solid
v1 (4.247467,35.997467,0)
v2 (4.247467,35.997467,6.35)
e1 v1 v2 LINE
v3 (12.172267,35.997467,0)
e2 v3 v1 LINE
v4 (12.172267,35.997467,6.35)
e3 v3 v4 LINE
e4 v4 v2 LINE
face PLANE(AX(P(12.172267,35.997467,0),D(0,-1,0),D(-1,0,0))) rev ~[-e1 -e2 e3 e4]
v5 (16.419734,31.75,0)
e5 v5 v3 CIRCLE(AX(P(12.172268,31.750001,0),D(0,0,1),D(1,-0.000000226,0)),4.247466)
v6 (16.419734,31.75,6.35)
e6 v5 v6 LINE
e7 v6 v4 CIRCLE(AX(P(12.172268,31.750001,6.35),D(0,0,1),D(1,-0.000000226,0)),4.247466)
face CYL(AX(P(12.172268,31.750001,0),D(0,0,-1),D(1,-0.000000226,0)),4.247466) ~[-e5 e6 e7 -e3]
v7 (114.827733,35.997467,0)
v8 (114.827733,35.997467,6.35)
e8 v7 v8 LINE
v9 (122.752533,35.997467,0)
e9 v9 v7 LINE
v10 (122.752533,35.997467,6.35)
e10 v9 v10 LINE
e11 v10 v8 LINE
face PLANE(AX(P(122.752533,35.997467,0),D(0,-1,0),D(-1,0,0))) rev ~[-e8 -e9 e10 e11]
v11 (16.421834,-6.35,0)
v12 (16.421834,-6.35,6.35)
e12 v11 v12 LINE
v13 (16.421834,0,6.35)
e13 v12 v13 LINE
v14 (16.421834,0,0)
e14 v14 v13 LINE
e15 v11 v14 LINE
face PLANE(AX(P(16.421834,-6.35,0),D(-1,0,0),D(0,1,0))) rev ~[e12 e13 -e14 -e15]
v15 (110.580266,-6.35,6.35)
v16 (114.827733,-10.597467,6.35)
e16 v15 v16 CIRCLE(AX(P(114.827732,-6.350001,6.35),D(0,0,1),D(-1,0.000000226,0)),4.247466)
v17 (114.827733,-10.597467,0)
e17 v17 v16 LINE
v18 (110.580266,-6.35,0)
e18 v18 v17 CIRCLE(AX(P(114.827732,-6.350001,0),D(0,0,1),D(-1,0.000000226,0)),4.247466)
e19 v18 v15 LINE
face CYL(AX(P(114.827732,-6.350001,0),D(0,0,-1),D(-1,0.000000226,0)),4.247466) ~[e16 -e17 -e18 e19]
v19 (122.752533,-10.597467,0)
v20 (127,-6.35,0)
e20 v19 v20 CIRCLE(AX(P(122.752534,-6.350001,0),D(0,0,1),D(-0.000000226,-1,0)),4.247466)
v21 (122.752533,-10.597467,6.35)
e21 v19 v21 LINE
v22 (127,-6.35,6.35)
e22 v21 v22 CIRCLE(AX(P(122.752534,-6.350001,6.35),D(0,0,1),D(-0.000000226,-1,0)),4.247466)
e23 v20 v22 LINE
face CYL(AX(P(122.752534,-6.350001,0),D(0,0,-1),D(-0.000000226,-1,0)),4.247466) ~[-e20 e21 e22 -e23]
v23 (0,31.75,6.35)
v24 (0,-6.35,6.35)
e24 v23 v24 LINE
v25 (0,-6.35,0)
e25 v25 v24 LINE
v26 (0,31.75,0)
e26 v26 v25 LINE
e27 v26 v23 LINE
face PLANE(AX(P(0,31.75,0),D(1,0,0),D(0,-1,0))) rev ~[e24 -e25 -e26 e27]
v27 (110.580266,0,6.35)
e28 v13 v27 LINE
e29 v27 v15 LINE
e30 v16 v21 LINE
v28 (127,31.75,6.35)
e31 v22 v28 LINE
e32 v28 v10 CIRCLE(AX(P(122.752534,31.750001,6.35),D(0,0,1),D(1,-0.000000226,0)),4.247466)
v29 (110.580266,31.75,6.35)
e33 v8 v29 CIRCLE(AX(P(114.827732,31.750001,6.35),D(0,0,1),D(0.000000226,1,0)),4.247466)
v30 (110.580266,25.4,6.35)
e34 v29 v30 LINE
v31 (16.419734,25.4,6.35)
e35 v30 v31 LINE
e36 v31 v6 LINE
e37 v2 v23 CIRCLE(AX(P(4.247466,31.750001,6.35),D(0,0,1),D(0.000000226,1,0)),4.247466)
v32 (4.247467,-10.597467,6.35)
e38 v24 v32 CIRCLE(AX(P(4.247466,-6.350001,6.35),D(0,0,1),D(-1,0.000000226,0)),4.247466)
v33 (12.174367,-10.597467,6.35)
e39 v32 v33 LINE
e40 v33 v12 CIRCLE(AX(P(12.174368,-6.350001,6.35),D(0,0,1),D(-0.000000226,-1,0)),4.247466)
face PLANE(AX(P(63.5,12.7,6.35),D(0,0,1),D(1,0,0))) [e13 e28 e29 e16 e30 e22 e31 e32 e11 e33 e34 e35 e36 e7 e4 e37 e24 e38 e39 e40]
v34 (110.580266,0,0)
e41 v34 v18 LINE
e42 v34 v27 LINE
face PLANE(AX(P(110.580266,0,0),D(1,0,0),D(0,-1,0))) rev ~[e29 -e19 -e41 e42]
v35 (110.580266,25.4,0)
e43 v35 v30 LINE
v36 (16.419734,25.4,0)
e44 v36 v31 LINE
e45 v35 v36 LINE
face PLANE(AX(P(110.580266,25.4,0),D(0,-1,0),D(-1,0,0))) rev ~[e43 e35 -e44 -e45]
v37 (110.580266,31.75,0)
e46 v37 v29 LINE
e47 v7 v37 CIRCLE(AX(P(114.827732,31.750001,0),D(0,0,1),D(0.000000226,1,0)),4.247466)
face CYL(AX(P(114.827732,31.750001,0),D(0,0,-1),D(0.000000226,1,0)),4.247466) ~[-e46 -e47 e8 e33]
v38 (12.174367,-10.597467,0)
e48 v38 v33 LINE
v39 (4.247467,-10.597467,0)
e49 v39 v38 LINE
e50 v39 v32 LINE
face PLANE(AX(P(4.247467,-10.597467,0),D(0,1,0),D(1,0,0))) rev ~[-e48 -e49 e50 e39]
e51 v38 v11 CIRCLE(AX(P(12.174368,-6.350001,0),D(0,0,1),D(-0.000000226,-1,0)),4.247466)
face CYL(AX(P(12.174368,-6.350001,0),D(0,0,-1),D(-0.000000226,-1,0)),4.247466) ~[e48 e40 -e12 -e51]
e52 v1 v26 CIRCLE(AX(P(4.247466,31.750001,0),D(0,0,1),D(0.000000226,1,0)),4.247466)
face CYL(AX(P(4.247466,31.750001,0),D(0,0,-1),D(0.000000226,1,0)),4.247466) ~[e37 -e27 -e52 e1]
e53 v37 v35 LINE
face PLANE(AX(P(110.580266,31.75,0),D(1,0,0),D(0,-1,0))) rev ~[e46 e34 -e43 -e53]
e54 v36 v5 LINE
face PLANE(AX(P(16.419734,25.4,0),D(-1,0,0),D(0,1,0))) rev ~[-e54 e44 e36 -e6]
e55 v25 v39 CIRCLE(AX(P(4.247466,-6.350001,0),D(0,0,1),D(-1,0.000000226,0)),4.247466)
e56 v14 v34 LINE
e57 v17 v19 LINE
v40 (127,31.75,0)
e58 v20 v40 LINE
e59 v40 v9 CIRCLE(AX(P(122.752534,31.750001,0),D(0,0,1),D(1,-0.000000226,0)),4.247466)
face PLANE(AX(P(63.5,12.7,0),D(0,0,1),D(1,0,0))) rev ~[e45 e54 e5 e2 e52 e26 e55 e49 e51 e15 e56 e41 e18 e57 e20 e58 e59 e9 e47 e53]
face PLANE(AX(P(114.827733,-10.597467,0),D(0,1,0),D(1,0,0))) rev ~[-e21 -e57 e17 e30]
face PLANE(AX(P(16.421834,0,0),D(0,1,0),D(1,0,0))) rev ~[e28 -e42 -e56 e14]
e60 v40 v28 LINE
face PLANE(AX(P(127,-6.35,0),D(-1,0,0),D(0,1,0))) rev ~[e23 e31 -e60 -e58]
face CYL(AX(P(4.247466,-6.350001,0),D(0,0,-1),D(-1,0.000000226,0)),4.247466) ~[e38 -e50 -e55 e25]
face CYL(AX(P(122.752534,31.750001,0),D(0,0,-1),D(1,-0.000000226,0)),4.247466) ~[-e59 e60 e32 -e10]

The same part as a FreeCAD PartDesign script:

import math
import FreeCAD as App
import Part
import Sketcher

V = App.Vector
Q = App.Units.Quantity

doc = App.newDocument("Part")
params = doc.addObject("Spreadsheet::Sheet", "Params")
for row, (alias, value) in enumerate([
    ("sketch1_height", "1.5 in"),
    ("sketch1_width", "0.312 in"),
    ("pad1_length", "0.25 in"),
], start=1):
    params.set(f"A{row}", alias)
    params.set(f"B{row}", "=" + value)
    params.setAlias(f"B{row}", alias)

body = doc.addObject("PartDesign::Body", "Body")

# Sketch on XY plane
sketch1 = body.newObject("Sketcher::SketchObject", "Sketch")
sketch1.AttachmentSupport = (doc.getObject("XY_Plane"), [""])
sketch1.MapMode = "FlatFace"
sketch1.addGeometry([
    Part.ArcOfCircle(Part.Circle(V(4.247466, -6.350001, 0), V(0, 0, 1), 4.247466), math.radians(179.999987), math.radians(270.000013)),  # 0
    Part.LineSegment(V(4.247467, -10.597467, 0), V(12.174367, -10.597467, 0)),  # 1
    Part.ArcOfCircle(Part.Circle(V(12.174368, -6.350001, 0), V(0, 0, 1), 4.247466), math.radians(-90.000013), math.radians(0.000013)),  # 2
    Part.LineSegment(V(16.421834, -6.35, 0), V(16.421834, 0, 0)),  # 3
    Part.LineSegment(V(16.421834, 0, 0), V(110.580266, 0, 0)),  # 4
    Part.LineSegment(V(110.580266, 0, 0), V(110.580266, -6.35, 0)),  # 5
    Part.ArcOfCircle(Part.Circle(V(114.827732, -6.350001, 0), V(0, 0, 1), 4.247466), math.radians(179.999987), math.radians(270.000013)),  # 6
    Part.LineSegment(V(114.827733, -10.597467, 0), V(122.752533, -10.597467, 0)),  # 7
    Part.ArcOfCircle(Part.Circle(V(122.752534, -6.350001, 0), V(0, 0, 1), 4.247466), math.radians(-90.000013), math.radians(0.000013)),  # 8
    Part.LineSegment(V(127, -6.35, 0), V(127, 31.75, 0)),  # 9
    Part.ArcOfCircle(Part.Circle(V(122.752534, 31.750001, 0), V(0, 0, 1), 4.247466), math.radians(-0.000013), math.radians(90.000013)),  # 10
    Part.LineSegment(V(122.752533, 35.997467, 0), V(114.827733, 35.997467, 0)),  # 11
    Part.ArcOfCircle(Part.Circle(V(114.827732, 31.750001, 0), V(0, 0, 1), 4.247466), math.radians(89.999987), math.radians(180.000013)),  # 12
    Part.LineSegment(V(110.580266, 31.75, 0), V(110.580266, 25.4, 0)),  # 13
    Part.LineSegment(V(110.580266, 25.4, 0), V(16.419734, 25.4, 0)),  # 14
    Part.LineSegment(V(16.419734, 25.4, 0), V(16.419734, 31.75, 0)),  # 15
    Part.ArcOfCircle(Part.Circle(V(12.172268, 31.750001, 0), V(0, 0, 1), 4.247466), math.radians(-0.000013), math.radians(90.000013)),  # 16
    Part.LineSegment(V(12.172267, 35.997467, 0), V(4.247467, 35.997467, 0)),  # 17
    Part.ArcOfCircle(Part.Circle(V(4.247466, 31.750001, 0), V(0, 0, 1), 4.247466), math.radians(89.999987), math.radians(180.000013)),  # 18
    Part.LineSegment(V(0, 31.75, 0), V(0, -6.35, 0)),  # 19
], False)
sketch1.addConstraint([
    Sketcher.Constraint("Tangent", 0, 2, 1, 1),
    Sketcher.Constraint("Tangent", 1, 2, 2, 1),
    Sketcher.Constraint("Tangent", 2, 2, 3, 1),
    Sketcher.Constraint("Coincident", 3, 2, 4, 1),
    Sketcher.Constraint("Coincident", 4, 2, 5, 1),
    Sketcher.Constraint("Tangent", 5, 2, 6, 1),
    Sketcher.Constraint("Tangent", 6, 2, 7, 1),
    Sketcher.Constraint("Tangent", 7, 2, 8, 1),
    Sketcher.Constraint("Tangent", 8, 2, 9, 1),
    Sketcher.Constraint("Tangent", 9, 2, 10, 1),
    Sketcher.Constraint("Tangent", 10, 2, 11, 1),
    Sketcher.Constraint("Tangent", 11, 2, 12, 1),
    Sketcher.Constraint("Tangent", 12, 2, 13, 1),
    Sketcher.Constraint("Coincident", 13, 2, 14, 1),
    Sketcher.Constraint("Coincident", 14, 2, 15, 1),
    Sketcher.Constraint("Tangent", 15, 2, 16, 1),
    Sketcher.Constraint("Tangent", 16, 2, 17, 1),
    Sketcher.Constraint("Tangent", 17, 2, 18, 1),
    Sketcher.Constraint("Tangent", 18, 2, 19, 1),
    Sketcher.Constraint("Tangent", 19, 2, 0, 1),
    Sketcher.Constraint("Horizontal", 1),
    Sketcher.Constraint("Vertical", 3),
    Sketcher.Constraint("Horizontal", 4),
    Sketcher.Constraint("Vertical", 5),
    Sketcher.Constraint("Horizontal", 7),
    Sketcher.Constraint("Vertical", 9),
    Sketcher.Constraint("Horizontal", 11),
    Sketcher.Constraint("Vertical", 13),
    Sketcher.Constraint("Horizontal", 14),
    Sketcher.Constraint("Vertical", 15),
    Sketcher.Constraint("Horizontal", 17),
    Sketcher.Constraint("Vertical", 19),
    Sketcher.Constraint("Equal", 0, 2),
    Sketcher.Constraint("Equal", 2, 6),
    Sketcher.Constraint("Equal", 6, 8),
    Sketcher.Constraint("Equal", 8, 10),
    Sketcher.Constraint("Equal", 10, 12),
    Sketcher.Constraint("Equal", 12, 16),
    Sketcher.Constraint("Equal", 16, 18),
    Sketcher.Constraint("PointOnObject", 3, 2, -1),
    Sketcher.Constraint("PointOnObject", 18, 2, -2),
    Sketcher.Constraint("Horizontal", 2, 3, 6, 3),
    Sketcher.Constraint("Horizontal", 12, 3, 16, 3),
    Sketcher.Constraint("Vertical", 6, 3, 12, 3),
    Sketcher.Constraint("Equal", 11, 17),
    Sketcher.Constraint("Equal", 5, 13),
    Sketcher.Constraint("DistanceY", 9, 1, 9, 2, Q("1.5 in")),
    Sketcher.Constraint("DistanceX", -1, 1, 8, 2, Q("5 in")),
    Sketcher.Constraint("DistanceY", -1, 1, 13, 2, Q("1 in")),
    Sketcher.Constraint("DistanceX", 7, 1, 7, 2, Q("0.312 in")),
    Sketcher.Constraint("DistanceX", 1, 1, 1, 2, Q("7.9269 mm")),
    Sketcher.Constraint("Radius", 0, Q("4.247466 mm")),
])
sketch1.setExpression("Constraints[46]", "Params.sketch1_height")
sketch1.setExpression("Constraints[49]", "Params.sketch1_width")
pad1 = body.newObject("PartDesign::Pad", "Pad")
pad1.Profile = sketch1
pad1.setExpression("Length", "Params.pad1_length")

doc.recompute()
